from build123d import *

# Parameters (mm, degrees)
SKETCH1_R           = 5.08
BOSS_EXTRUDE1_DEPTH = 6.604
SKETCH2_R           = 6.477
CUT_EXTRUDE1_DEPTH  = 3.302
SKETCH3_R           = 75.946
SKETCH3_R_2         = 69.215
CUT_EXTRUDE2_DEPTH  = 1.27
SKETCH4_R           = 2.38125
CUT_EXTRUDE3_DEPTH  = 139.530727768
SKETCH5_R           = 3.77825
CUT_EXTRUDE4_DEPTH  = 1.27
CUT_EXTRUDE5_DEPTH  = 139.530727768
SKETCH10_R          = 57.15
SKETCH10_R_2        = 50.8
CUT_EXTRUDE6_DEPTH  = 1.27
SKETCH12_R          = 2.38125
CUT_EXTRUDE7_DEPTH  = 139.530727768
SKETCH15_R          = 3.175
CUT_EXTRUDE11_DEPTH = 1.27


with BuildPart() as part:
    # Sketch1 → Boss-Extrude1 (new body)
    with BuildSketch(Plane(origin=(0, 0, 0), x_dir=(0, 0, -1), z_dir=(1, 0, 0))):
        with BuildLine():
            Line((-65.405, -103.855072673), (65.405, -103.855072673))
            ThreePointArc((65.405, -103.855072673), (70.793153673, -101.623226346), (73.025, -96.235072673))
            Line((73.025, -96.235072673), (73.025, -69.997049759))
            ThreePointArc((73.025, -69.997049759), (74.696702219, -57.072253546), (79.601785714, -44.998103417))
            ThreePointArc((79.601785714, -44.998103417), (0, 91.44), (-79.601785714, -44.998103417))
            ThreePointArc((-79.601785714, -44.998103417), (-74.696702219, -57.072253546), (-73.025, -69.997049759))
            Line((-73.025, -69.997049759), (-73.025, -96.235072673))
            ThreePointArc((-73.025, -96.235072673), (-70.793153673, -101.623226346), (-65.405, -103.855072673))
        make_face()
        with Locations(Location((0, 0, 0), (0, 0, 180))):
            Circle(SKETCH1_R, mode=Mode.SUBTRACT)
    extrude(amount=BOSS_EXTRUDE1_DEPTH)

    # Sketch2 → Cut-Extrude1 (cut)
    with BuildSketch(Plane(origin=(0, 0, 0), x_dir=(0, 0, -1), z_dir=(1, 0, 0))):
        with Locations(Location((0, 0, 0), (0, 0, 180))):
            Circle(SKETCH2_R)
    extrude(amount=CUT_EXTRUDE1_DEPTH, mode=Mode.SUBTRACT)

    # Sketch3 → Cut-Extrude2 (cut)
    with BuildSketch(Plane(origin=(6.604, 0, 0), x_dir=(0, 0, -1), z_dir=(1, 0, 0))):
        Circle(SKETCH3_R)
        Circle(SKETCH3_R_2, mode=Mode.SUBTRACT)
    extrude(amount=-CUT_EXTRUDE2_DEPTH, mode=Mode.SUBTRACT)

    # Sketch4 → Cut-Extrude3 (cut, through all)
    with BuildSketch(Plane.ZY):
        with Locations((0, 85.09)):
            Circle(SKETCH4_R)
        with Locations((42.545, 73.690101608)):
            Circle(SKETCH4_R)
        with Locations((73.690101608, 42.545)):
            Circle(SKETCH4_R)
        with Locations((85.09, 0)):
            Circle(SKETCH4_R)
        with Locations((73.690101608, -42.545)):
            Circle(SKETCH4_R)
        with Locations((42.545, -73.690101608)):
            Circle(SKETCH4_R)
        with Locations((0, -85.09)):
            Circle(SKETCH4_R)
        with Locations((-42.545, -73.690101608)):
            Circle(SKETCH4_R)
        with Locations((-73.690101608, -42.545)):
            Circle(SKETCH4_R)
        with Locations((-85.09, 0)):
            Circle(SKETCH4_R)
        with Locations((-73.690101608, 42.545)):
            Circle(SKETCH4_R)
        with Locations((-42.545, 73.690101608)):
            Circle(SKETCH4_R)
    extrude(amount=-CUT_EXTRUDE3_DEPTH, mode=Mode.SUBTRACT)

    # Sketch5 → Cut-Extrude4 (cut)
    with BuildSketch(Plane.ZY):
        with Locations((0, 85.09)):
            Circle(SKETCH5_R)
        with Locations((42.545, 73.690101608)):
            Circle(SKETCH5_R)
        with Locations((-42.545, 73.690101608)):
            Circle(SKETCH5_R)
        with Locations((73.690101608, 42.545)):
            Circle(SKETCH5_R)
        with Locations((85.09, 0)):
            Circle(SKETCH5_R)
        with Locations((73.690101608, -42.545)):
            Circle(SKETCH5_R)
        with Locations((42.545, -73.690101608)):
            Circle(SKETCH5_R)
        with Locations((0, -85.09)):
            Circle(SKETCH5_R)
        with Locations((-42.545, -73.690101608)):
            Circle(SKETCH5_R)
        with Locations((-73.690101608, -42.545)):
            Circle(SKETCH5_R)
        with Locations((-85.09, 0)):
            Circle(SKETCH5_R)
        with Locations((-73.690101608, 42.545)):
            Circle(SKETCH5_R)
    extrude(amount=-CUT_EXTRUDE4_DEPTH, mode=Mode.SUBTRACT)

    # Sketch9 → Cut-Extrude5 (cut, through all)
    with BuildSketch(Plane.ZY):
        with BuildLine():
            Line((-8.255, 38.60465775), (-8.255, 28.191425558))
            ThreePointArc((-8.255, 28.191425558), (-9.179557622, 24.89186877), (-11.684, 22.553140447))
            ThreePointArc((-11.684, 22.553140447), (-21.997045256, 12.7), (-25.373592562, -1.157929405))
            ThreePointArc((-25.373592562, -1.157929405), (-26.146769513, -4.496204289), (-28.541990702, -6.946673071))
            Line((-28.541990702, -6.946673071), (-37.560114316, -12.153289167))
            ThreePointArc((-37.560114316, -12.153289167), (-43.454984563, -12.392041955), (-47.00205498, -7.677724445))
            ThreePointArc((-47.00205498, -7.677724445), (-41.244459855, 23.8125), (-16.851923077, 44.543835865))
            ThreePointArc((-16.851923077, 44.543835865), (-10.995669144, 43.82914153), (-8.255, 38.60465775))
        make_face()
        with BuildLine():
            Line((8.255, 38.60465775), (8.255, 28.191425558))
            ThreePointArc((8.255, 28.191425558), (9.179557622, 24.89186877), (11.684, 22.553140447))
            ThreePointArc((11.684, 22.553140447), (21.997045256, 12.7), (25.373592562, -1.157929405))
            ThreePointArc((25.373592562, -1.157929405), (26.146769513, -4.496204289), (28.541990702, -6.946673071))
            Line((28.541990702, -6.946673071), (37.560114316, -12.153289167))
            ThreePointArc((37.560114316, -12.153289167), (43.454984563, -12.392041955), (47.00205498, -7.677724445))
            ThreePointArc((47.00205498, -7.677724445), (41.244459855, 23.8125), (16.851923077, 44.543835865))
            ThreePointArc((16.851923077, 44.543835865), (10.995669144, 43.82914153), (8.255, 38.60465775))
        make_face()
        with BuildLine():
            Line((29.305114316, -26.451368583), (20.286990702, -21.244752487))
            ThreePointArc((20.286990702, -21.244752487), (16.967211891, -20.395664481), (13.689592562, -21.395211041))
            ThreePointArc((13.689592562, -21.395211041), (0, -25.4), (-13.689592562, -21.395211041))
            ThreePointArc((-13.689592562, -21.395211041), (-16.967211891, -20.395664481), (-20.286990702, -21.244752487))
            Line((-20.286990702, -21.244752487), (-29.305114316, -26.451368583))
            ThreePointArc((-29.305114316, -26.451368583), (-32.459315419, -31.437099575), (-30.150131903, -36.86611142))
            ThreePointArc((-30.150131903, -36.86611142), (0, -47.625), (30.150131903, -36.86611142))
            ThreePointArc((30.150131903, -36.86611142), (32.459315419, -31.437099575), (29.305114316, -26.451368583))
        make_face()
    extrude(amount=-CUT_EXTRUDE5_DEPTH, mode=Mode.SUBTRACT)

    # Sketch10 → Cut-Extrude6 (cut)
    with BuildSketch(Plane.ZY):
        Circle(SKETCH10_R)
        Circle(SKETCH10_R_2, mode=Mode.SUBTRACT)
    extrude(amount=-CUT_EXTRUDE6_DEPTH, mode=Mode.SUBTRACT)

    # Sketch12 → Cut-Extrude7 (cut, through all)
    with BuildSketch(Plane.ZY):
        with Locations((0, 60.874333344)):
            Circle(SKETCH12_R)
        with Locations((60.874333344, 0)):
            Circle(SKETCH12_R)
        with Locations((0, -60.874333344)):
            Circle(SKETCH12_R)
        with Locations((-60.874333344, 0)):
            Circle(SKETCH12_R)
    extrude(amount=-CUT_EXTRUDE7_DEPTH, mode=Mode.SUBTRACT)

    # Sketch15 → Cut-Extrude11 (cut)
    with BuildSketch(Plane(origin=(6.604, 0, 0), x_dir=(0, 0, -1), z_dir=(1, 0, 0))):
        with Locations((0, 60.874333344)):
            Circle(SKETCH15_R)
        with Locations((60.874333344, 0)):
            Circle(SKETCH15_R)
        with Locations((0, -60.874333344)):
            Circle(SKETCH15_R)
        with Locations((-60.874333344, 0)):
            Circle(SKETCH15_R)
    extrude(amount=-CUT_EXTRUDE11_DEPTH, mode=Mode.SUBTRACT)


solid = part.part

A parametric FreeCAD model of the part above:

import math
import FreeCAD as App
import Part
import Sketcher

V = App.Vector
Q = App.Units.Quantity

doc = App.newDocument("Part")
params = doc.addObject("Spreadsheet::Sheet", "Params")
for row, (alias, value) in enumerate([
    ("sketch1_radius", "2 in"),
    ("sketch1_diameter", "0.4 in"),
    ("sketch1_radius2", "0.3 in"),
    ("sketch1_radius3", "3.6 in"),
    ("sketch1_height", "5.15 in"),
    ("pad1_length", "0.26 in"),
    ("sketch2_diameter", "0.51 in"),
    ("pocket1_length", "0.13 in"),
    ("sketch3_diameter", "5.98 in"),
    ("sketch3_diameter2", "5.45 in"),
    ("pocket2_length", "0.05 in"),
    ("sketch4_diameter", "0.1875 in"),
    ("pocket4_length", "0.05 in"),
    ("sketch6_radius", "1 in"),
    ("sketch6_radius2", "0.25 in"),
    ("sketch6_radius3", "1.875 in"),
    ("sketch7_diameter", "4 in"),
    ("sketch7_diameter2", "4.5 in"),
    ("pocket6_length", "0.05 in"),
    ("sketch8_diameter", "0.1875 in"),
    ("sketch9_diameter", "0.25 in"),
    ("pocket8_length", "0.05 in"),
], start=1):
    params.set(f"A{row}", alias)
    params.set(f"B{row}", "=" + value)
    params.setAlias(f"B{row}", alias)

body = doc.addObject("PartDesign::Body", "Body")

# Sketch on YZ plane
sketch1 = body.newObject("Sketcher::SketchObject", "Sketch")
sketch1.AttachmentSupport = (doc.getObject("YZ_Plane"), [""])
sketch1.MapMode = "FlatFace"
sketch1.addGeometry(Part.LineSegment(V(-104, 65, 0), V(-104, -65, 0)), False)
sketch1.addGeometry(Part.ArcOfCircle(Part.Circle(V(-96, -65, 0), V(0, 0, 1), 8), math.radians(180), math.radians(270)), False)
sketch1.addGeometry(Part.LineSegment(V(-96, -73, 0), V(-70, -73, 0)), False)
sketch1.addGeometry(Part.ArcOfCircle(Part.Circle(V(-70, -124, 0), V(0, 0, 1), 51), math.radians(61), math.radians(90)), False)
sketch1.addGeometry(Part.ArcOfCircle(Part.Circle(V(0, 0, 0), V(0, 0, 1), 91), math.radians(-119), math.radians(119)), False)
sketch1.addGeometry(Part.ArcOfCircle(Part.Circle(V(-70, 124, 0), V(0, 0, 1), 51), math.radians(-90), math.radians(-61)), False)
sketch1.addGeometry(Part.LineSegment(V(-70, 73, 0), V(-96, 73, 0)), False)
sketch1.addGeometry(Part.ArcOfCircle(Part.Circle(V(-96, 65, 0), V(0, 0, 1), 8), math.radians(90), math.radians(180)), False)
sketch1.addGeometry(Part.Circle(V(0, 0, 0), V(0, 0, 1), 5), False)
sketch1.addConstraint(Sketcher.Constraint("Tangent", 0, 2, 1, 1))
sketch1.addConstraint(Sketcher.Constraint("Tangent", 1, 2, 2, 1))
sketch1.addConstraint(Sketcher.Constraint("Tangent", 2, 2, 3, 2))
sketch1.addConstraint(Sketcher.Constraint("Tangent", 3, 1, 4, 1))
sketch1.addConstraint(Sketcher.Constraint("Tangent", 4, 2, 5, 2))
sketch1.addConstraint(Sketcher.Constraint("Tangent", 5, 1, 6, 1))
sketch1.addConstraint(Sketcher.Constraint("Tangent", 6, 2, 7, 1))
sketch1.addConstraint(Sketcher.Constraint("Tangent", 7, 2, 0, 1))
sketch1.addConstraint(Sketcher.Constraint("Vertical", 0))
sketch1.addConstraint(Sketcher.Constraint("Horizontal", 2))
sketch1.addConstraint(Sketcher.Constraint("Horizontal", 6))
sketch1.addConstraint(Sketcher.Constraint("Coincident", 4, 3, -1, 1))
sketch1.addConstraint(Sketcher.Constraint("Coincident", 8, 3, -1, 1))
sketch1.addConstraint(Sketcher.Constraint("Equal", 3, 5))
sketch1.addConstraint(Sketcher.Constraint("Equal", 1, 7))
sketch1.addConstraint(Sketcher.Constraint("Vertical", 3, 3, 5, 3))
sketch1.addConstraint(Sketcher.Constraint("Radius", 3, Q("2 in")))
sketch1.addConstraint(Sketcher.Constraint("Diameter", 8, Q("0.4 in")))
sketch1.addConstraint(Sketcher.Constraint("Radius", 1, Q("0.3 in")))
sketch1.addConstraint(Sketcher.Constraint("Radius", 4, Q("3.6 in")))
sketch1.addConstraint(Sketcher.Constraint("DistanceY", 0, 2, 0, 1, Q("5.15 in")))
sketch1.addConstraint(Sketcher.Constraint("DistanceX", 2, 1, 2, 2, 26.238023))
sketch1.setExpression("Constraints[16]", "Params.sketch1_radius")
sketch1.setExpression("Constraints[17]", "Params.sketch1_diameter")
sketch1.setExpression("Constraints[18]", "Params.sketch1_radius2")
sketch1.setExpression("Constraints[19]", "Params.sketch1_radius3")
sketch1.setExpression("Constraints[20]", "Params.sketch1_height")
pad1 = body.newObject("PartDesign::Pad", "Pad")
pad1.Profile = sketch1
pad1.setExpression("Length", "Params.pad1_length")

# Sketch on YZ plane
sketch2 = body.newObject("Sketcher::SketchObject", "Sketch001")
sketch2.AttachmentSupport = (doc.getObject("YZ_Plane"), [""])
sketch2.MapMode = "FlatFace"
sketch2.addGeometry(Part.Circle(V(0, 0, 0), V(0, 0, 1), 6), False)
sketch2.addConstraint(Sketcher.Constraint("Coincident", 0, 3, -1, 1))
sketch2.addConstraint(Sketcher.Constraint("Diameter", 0, Q("0.51 in")))
sketch2.setExpression("Constraints[1]", "Params.sketch2_diameter")
pocket1 = body.newObject("PartDesign::Pocket", "Pocket")
pocket1.Profile = sketch2
pocket1.setExpression("Length", "Params.pocket1_length")
pocket1.Reversed = True

# Sketch on YZ plane
sketch3 = body.newObject("Sketcher::SketchObject", "Sketch002")
sketch3.AttachmentSupport = (doc.getObject("YZ_Plane"), [""])
sketch3.MapMode = "FlatFace"
sketch3.AttachmentOffset = App.Placement(V(0, 0, 0.26 * 25.4), App.Rotation())
sketch3.addGeometry(Part.Circle(V(0, 0, 0), V(0, 0, 1), 76), False)
sketch3.addGeometry(Part.Circle(V(0, 0, 0), V(0, 0, 1), 69), False)
sketch3.addConstraint(Sketcher.Constraint("Coincident", 0, 3, -1, 1))
sketch3.addConstraint(Sketcher.Constraint("Coincident", 1, 3, -1, 1))
sketch3.addConstraint(Sketcher.Constraint("Diameter", 0, Q("5.98 in")))
sketch3.addConstraint(Sketcher.Constraint("Diameter", 1, Q("5.45 in")))
sketch3.setExpression("Constraints[2]", "Params.sketch3_diameter")
sketch3.setExpression("Constraints[3]", "Params.sketch3_diameter2")
pocket2 = body.newObject("PartDesign::Pocket", "Pocket001")
pocket2.Profile = sketch3
pocket2.setExpression("Length", "Params.pocket2_length")

# Sketch on YZ plane
sketch4 = body.newObject("Sketcher::SketchObject", "Sketch003")
sketch4.AttachmentSupport = (doc.getObject("YZ_Plane"), [""])
sketch4.MapMode = "FlatFace"
sketch4.addGeometry(Part.Circle(V(85.1, 0, 0), V(0, 0, 1), 2.4), False)
sketch4.addGeometry(Part.Circle(V(73.7, 42.5, 0), V(0, 0, 1), 2.4), False)
sketch4.addGeometry(Part.Circle(V(42.5, 73.7, 0), V(0, 0, 1), 2.4), False)
sketch4.addGeometry(Part.Circle(V(0, 85.1, 0), V(0, 0, 1), 2.4), False)
sketch4.addGeometry(Part.Circle(V(-42.5, 73.7, 0), V(0, 0, 1), 2.4), False)
sketch4.addGeometry(Part.Circle(V(-73.7, 42.5, 0), V(0, 0, 1), 2.4), False)
sketch4.addGeometry(Part.Circle(V(-85.1, 0, 0), V(0, 0, 1), 2.4), False)
sketch4.addGeometry(Part.Circle(V(-73.7, -42.5, 0), V(0, 0, 1), 2.4), False)
sketch4.addGeometry(Part.Circle(V(-42.5, -73.7, 0), V(0, 0, 1), 2.4), False)
sketch4.addGeometry(Part.Circle(V(0, -85.1, 0), V(0, 0, 1), 2.4), False)
sketch4.addGeometry(Part.Circle(V(42.5, -73.7, 0), V(0, 0, 1), 2.4), False)
sketch4.addGeometry(Part.Circle(V(73.7, -42.5, 0), V(0, 0, 1), 2.4), False)
sketch4.addConstraint(Sketcher.Constraint("Equal", 0, 1))
sketch4.addConstraint(Sketcher.Constraint("Equal", 1, 2))
sketch4.addConstraint(Sketcher.Constraint("Equal", 2, 3))
sketch4.addConstraint(Sketcher.Constraint("Equal", 3, 4))
sketch4.addConstraint(Sketcher.Constraint("Equal", 4, 5))
sketch4.addConstraint(Sketcher.Constraint("Equal", 5, 6))
sketch4.addConstraint(Sketcher.Constraint("Equal", 6, 7))
sketch4.addConstraint(Sketcher.Constraint("Equal", 7, 8))
sketch4.addConstraint(Sketcher.Constraint("Equal", 8, 9))
sketch4.addConstraint(Sketcher.Constraint("Equal", 9, 10))
sketch4.addConstraint(Sketcher.Constraint("Equal", 10, 11))
sketch4.addConstraint(Sketcher.Constraint("Symmetric", 0, 3, 6, 3, -1, 1))
sketch4.addConstraint(Sketcher.Constraint("Symmetric", 1, 3, 7, 3, -1, 1))
sketch4.addConstraint(Sketcher.Constraint("Symmetric", 2, 3, 8, 3, -1, 1))
sketch4.addConstraint(Sketcher.Constraint("Symmetric", 3, 3, 9, 3, -1, 1))
sketch4.addConstraint(Sketcher.Constraint("Symmetric", 4, 3, 10, 3, -1, 1))
sketch4.addConstraint(Sketcher.Constraint("Symmetric", 5, 3, 11, 3, -1, 1))
sketch4.addConstraint(Sketcher.Constraint("Symmetric", 2, 3, 4, 3, -2))
sketch4.addConstraint(Sketcher.Constraint("Symmetric", 1, 3, 5, 3, -2))
sketch4.addConstraint(Sketcher.Constraint("PointOnObject", 0, 3, -1))
sketch4.addConstraint(Sketcher.Constraint("PointOnObject", 3, 3, -2))
sketch4.addConstraint(Sketcher.Constraint("Diameter", 0, Q("0.1875 in")))
sketch4.addConstraint(Sketcher.Constraint("DistanceX", -1, 1, 0, 3, Q("3.35 in")))
sketch4.addConstraint(Sketcher.Constraint("DistanceY", -1, 1, 3, 3, Q("3.35 in")))
sketch4.addConstraint(Sketcher.Constraint("DistanceX", 4, 3, 2, 3, Q("3.35 in")))
sketch4.addConstraint(Sketcher.Constraint("DistanceY", 7, 3, 5, 3, Q("3.35 in")))
sketch4.addConstraint(Sketcher.Constraint("DistanceX", -1, 1, 1, 3, 73.690102))
sketch4.addConstraint(Sketcher.Constraint("DistanceY", -1, 1, 2, 3, 73.690102))
sketch4.setExpression("Constraints[21]", "Params.sketch4_diameter")
pocket3 = body.newObject("PartDesign::Pocket", "Pocket002")
pocket3.Profile = sketch4
pocket3.Type = "ThroughAll"
pocket3.Reversed = True

# Sketch on YZ plane
sketch5 = body.newObject("Sketcher::SketchObject", "Sketch004")
sketch5.AttachmentSupport = (doc.getObject("YZ_Plane"), [""])
sketch5.MapMode = "FlatFace"
sketch5.addGeometry(Part.Circle(V(85.1, 0, 0), V(0, 0, 1), 3.8), False)
sketch5.addGeometry(Part.Circle(V(73.7, 42.5, 0), V(0, 0, 1), 3.8), False)
sketch5.addGeometry(Part.Circle(V(73.7, -42.5, 0), V(0, 0, 1), 3.8), False)
sketch5.addGeometry(Part.Circle(V(42.5, 73.7, 0), V(0, 0, 1), 3.8), False)
sketch5.addGeometry(Part.Circle(V(0, 85.1, 0), V(0, 0, 1), 3.8), False)
sketch5.addGeometry(Part.Circle(V(-42.5, 73.7, 0), V(0, 0, 1), 3.8), False)
sketch5.addGeometry(Part.Circle(V(-73.7, 42.5, 0), V(0, 0, 1), 3.8), False)
sketch5.addGeometry(Part.Circle(V(-85.1, 0, 0), V(0, 0, 1), 3.8), False)
sketch5.addGeometry(Part.Circle(V(-73.7, -42.5, 0), V(0, 0, 1), 3.8), False)
sketch5.addGeometry(Part.Circle(V(-42.5, -73.7, 0), V(0, 0, 1), 3.8), False)
sketch5.addGeometry(Part.Circle(V(0, -85.1, 0), V(0, 0, 1), 3.8), False)
sketch5.addGeometry(Part.Circle(V(42.5, -73.7, 0), V(0, 0, 1), 3.8), False)
sketch5.addConstraint(Sketcher.Constraint("Equal", 0, 1))
sketch5.addConstraint(Sketcher.Constraint("Equal", 1, 2))
sketch5.addConstraint(Sketcher.Constraint("Equal", 2, 3))
sketch5.addConstraint(Sketcher.Constraint("Equal", 3, 4))
sketch5.addConstraint(Sketcher.Constraint("Equal", 4, 5))
sketch5.addConstraint(Sketcher.Constraint("Equal", 5, 6))
sketch5.addConstraint(Sketcher.Constraint("Equal", 6, 7))
sketch5.addConstraint(Sketcher.Constraint("Equal", 7, 8))
sketch5.addConstraint(Sketcher.Constraint("Equal", 8, 9))
sketch5.addConstraint(Sketcher.Constraint("Equal", 9, 10))
sketch5.addConstraint(Sketcher.Constraint("Equal", 10, 11))
sketch5.addConstraint(Sketcher.Constraint("Symmetric", 2, 3, 6, 3, -1, 1))
sketch5.addConstraint(Sketcher.Constraint("Symmetric", 0, 3, 7, 3, -1, 1))
sketch5.addConstraint(Sketcher.Constraint("Symmetric", 1, 3, 8, 3, -1, 1))
sketch5.addConstraint(Sketcher.Constraint("Symmetric", 3, 3, 9, 3, -1, 1))
sketch5.addConstraint(Sketcher.Constraint("Symmetric", 4, 3, 10, 3, -1, 1))
sketch5.addConstraint(Sketcher.Constraint("Symmetric", 5, 3, 11, 3, -1, 1))
sketch5.addConstraint(Sketcher.Constraint("Symmetric", 3, 3, 5, 3, -2))
sketch5.addConstraint(Sketcher.Constraint("Symmetric", 1, 3, 6, 3, -2))
sketch5.addConstraint(Sketcher.Constraint("PointOnObject", 0, 3, -1))
sketch5.addConstraint(Sketcher.Constraint("PointOnObject", 4, 3, -2))
sketch5.addConstraint(Sketcher.Constraint("Diameter", 0, Q("0.2975 in")))
sketch5.addConstraint(Sketcher.Constraint("DistanceX", -1, 1, 0, 3, Q("3.35 in")))
sketch5.addConstraint(Sketcher.Constraint("DistanceY", -1, 1, 4, 3, Q("3.35 in")))
sketch5.addConstraint(Sketcher.Constraint("DistanceY", 2, 3, 1, 3, Q("3.35 in")))
sketch5.addConstraint(Sketcher.Constraint("DistanceX", 5, 3, 3, 3, Q("3.35 in")))
sketch5.addConstraint(Sketcher.Constraint("DistanceX", -1, 1, 1, 3, 73.690102))
sketch5.addConstraint(Sketcher.Constraint("DistanceY", -1, 1, 3, 3, 73.690102))
pocket4 = body.newObject("PartDesign::Pocket", "Pocket003")
pocket4.Profile = sketch5
pocket4.setExpression("Length", "Params.pocket4_length")
pocket4.Reversed = True

# Sketch on YZ plane
sketch6 = body.newObject("Sketcher::SketchObject", "Sketch005")
sketch6.AttachmentSupport = (doc.getObject("YZ_Plane"), [""])
sketch6.MapMode = "FlatFace"
sketch6.addGeometry(Part.LineSegment(V(28, -8, 0), V(39, -8, 0)), False)
sketch6.addGeometry(Part.ArcOfCircle(Part.Circle(V(39, -15, 0), V(0, 0, 1), 6), math.radians(-21), math.radians(90)), False)
sketch6.addGeometry(Part.ArcOfCircle(Part.Circle(V(0, 0, 0), V(0, 0, 1), 48), math.radians(-99), math.radians(-21)), False)
sketch6.addGeometry(Part.ArcOfCircle(Part.Circle(V(-7, -41, 0), V(0, 0, 1), 6), math.radians(150), math.radians(261)), False)
sketch6.addGeometry(Part.LineSegment(V(-12, -38, 0), V(-7, -29, 0)), False)
sketch6.addGeometry(Part.ArcOfCircle(Part.Circle(V(-1, -32, 0), V(0, 0, 1), 6), math.radians(87), math.radians(150)), False)
sketch6.addGeometry(Part.ArcOfCircle(Part.Circle(V(0, 0, 0), V(0, 0, 1), 25), math.radians(-93), math.radians(-27)), False)
sketch6.addGeometry(Part.ArcOfCircle(Part.Circle(V(28, -15, 0), V(0, 0, 1), 6), math.radians(90), math.radians(153)), False)
sketch6.addGeometry(Part.LineSegment(V(39, 8, 0), V(28, 8, 0)), False)
sketch6.addGeometry(Part.ArcOfCircle(Part.Circle(V(28, 15, 0), V(0, 0, 1), 6), math.radians(-153), math.radians(-90)), False)
sketch6.addGeometry(Part.ArcOfCircle(Part.Circle(V(0, 0, 0), V(0, 0, 1), 25), math.radians(27), math.radians(93)), False)
sketch6.addGeometry(Part.ArcOfCircle(Part.Circle(V(-1, 32, 0), V(0, 0, 1), 6), math.radians(-150), math.radians(-87)), False)
sketch6.addGeometry(Part.LineSegment(V(-7, 29, 0), V(-12, 38, 0)), False)
sketch6.addGeometry(Part.ArcOfCircle(Part.Circle(V(-7, 41, 0), V(0, 0, 1), 6), math.radians(99), math.radians(210)), False)
sketch6.addGeometry(Part.ArcOfCircle(Part.Circle(V(0, 0, 0), V(0, 0, 1), 48), math.radians(21), math.radians(99)), False)
sketch6.addGeometry(Part.ArcOfCircle(Part.Circle(V(39, 15, 0), V(0, 0, 1), 6), math.radians(-90), math.radians(21)), False)
sketch6.addGeometry(Part.LineSegment(V(-26, 29, 0), V(-21, 20, 0)), False)
sketch6.addGeometry(Part.ArcOfCircle(Part.Circle(V(-27, 17, 0), V(0, 0, 1), 6), math.radians(-33), math.radians(30)), False)
sketch6.addGeometry(Part.ArcOfCircle(Part.Circle(V(0, 0, 0), V(0, 0, 1), 25), math.radians(147), math.radians(213)), False)
sketch6.addGeometry(Part.ArcOfCircle(Part.Circle(V(-27, -17, 0), V(0, 0, 1), 6), math.radians(-30), math.radians(33)), False)
sketch6.addGeometry(Part.LineSegment(V(-21, -20, 0), V(-26, -29, 0)), False)
sketch6.addGeometry(Part.ArcOfCircle(Part.Circle(V(-32, -26, 0), V(0, 0, 1), 6), math.radians(-141), math.radians(-30)), False)
sketch6.addGeometry(Part.ArcOfCircle(Part.Circle(V(0, 0, 0), V(0, 0, 1), 48), math.radians(141), math.radians(219)), False)
sketch6.addGeometry(Part.ArcOfCircle(Part.Circle(V(-32, 26, 0), V(0, 0, 1), 6), math.radians(30), math.radians(141)), False)
sketch6.addConstraint(Sketcher.Constraint("Tangent", 0, 2, 1, 2))
sketch6.addConstraint(Sketcher.Constraint("Tangent", 1, 1, 2, 2))
sketch6.addConstraint(Sketcher.Constraint("Tangent", 2, 1, 3, 2))
sketch6.addConstraint(Sketcher.Constraint("Tangent", 3, 1, 4, 1))
sketch6.addConstraint(Sketcher.Constraint("Tangent", 4, 2, 5, 2))
sketch6.addConstraint(Sketcher.Constraint("Tangent", 5, 1, 6, 1))
sketch6.addConstraint(Sketcher.Constraint("Tangent", 6, 2, 7, 2))
sketch6.addConstraint(Sketcher.Constraint("Tangent", 7, 1, 0, 1))
sketch6.addConstraint(Sketcher.Constraint("Tangent", 8, 2, 9, 2))
sketch6.addConstraint(Sketcher.Constraint("Tangent", 9, 1, 10, 1))
sketch6.addConstraint(Sketcher.Constraint("Tangent", 10, 2, 11, 2))
sketch6.addConstraint(Sketcher.Constraint("Tangent", 11, 1, 12, 1))
sketch6.addConstraint(Sketcher.Constraint("Tangent", 12, 2, 13, 2))
sketch6.addConstraint(Sketcher.Constraint("Tangent", 13, 1, 14, 2))
sketch6.addConstraint(Sketcher.Constraint("Tangent", 14, 1, 15, 2))
sketch6.addConstraint(Sketcher.Constraint("Tangent", 15, 1, 8, 1))
sketch6.addConstraint(Sketcher.Constraint("Tangent", 16, 2, 17, 2))
sketch6.addConstraint(Sketcher.Constraint("Tangent", 17, 1, 18, 1))
sketch6.addConstraint(Sketcher.Constraint("Tangent", 18, 2, 19, 2))
sketch6.addConstraint(Sketcher.Constraint("Tangent", 19, 1, 20, 1))
sketch6.addConstraint(Sketcher.Constraint("Tangent", 20, 2, 21, 2))
sketch6.addConstraint(Sketcher.Constraint("Tangent", 21, 1, 22, 2))
sketch6.addConstraint(Sketcher.Constraint("Tangent", 22, 1, 23, 2))
sketch6.addConstraint(Sketcher.Constraint("Tangent", 23, 1, 16, 1))
sketch6.addConstraint(Sketcher.Constraint("Horizontal", 0))
sketch6.addConstraint(Sketcher.Constraint("Horizontal", 8))
sketch6.addConstraint(Sketcher.Constraint("Coincident", 2, 3, -1, 1))
sketch6.addConstraint(Sketcher.Constraint("Coincident", 6, 3, -1, 1))
sketch6.addConstraint(Sketcher.Constraint("Coincident", 10, 3, -1, 1))
sketch6.addConstraint(Sketcher.Constraint("Coincident", 14, 3, -1, 1))
sketch6.addConstraint(Sketcher.Constraint("Coincident", 18, 3, -1, 1))
sketch6.addConstraint(Sketcher.Constraint("Coincident", 22, 3, -1, 1))
sketch6.addConstraint(Sketcher.Constraint("Equal", 1, 3))
sketch6.addConstraint(Sketcher.Constraint("Equal", 3, 5))
sketch6.addConstraint(Sketcher.Constraint("Equal", 5, 7))
sketch6.addConstraint(Sketcher.Constraint("Equal", 7, 9))
sketch6.addConstraint(Sketcher.Constraint("Equal", 6, 10))
sketch6.addConstraint(Sketcher.Constraint("Equal", 9, 11))
sketch6.addConstraint(Sketcher.Constraint("Equal", 11, 13))
sketch6.addConstraint(Sketcher.Constraint("Equal", 2, 14))
sketch6.addConstraint(Sketcher.Constraint("Equal", 13, 15))
sketch6.addConstraint(Sketcher.Constraint("Equal", 15, 17))
sketch6.addConstraint(Sketcher.Constraint("Equal", 10, 18))
sketch6.addConstraint(Sketcher.Constraint("Equal", 17, 19))
sketch6.addConstraint(Sketcher.Constraint("Equal", 19, 21))
sketch6.addConstraint(Sketcher.Constraint("Equal", 14, 22))
sketch6.addConstraint(Sketcher.Constraint("Equal", 21, 23))
sketch6.addConstraint(Sketcher.Constraint("Symmetric", 4, 2, 11, 1, -1))
sketch6.addConstraint(Sketcher.Constraint("Symmetric", 16, 2, 19, 1, -1))
sketch6.addConstraint(Sketcher.Constraint("Parallel", 12, 16))
sketch6.addConstraint(Sketcher.Constraint("Vertical", 7, 3, 9, 3))
sketch6.addConstraint(Sketcher.Constraint("Equal", 12, 16))
sketch6.addConstraint(Sketcher.Constraint("Radius", 6, Q("1 in")))
sketch6.addConstraint(Sketcher.Constraint("Radius", 1, Q("0.25 in")))
sketch6.addConstraint(Sketcher.Constraint("Angle", 4, Q("60 deg")))
sketch6.addConstraint(Sketcher.Constraint("Radius", 2, Q("1.875 in")))
sketch6.addConstraint(Sketcher.Constraint("DistanceY", 0, 2, 15, 3, Q("0.9 in")))
sketch6.addConstraint(Sketcher.Constraint("DistanceY", 3, 1, 21, 3, Q("0.45 in")))
sketch6.setExpression("Constraints[52]", "Params.sketch6_radius")
sketch6.setExpression("Constraints[53]", "Params.sketch6_radius2")
sketch6.setExpression("Constraints[55]", "Params.sketch6_radius3")
pocket5 = body.newObject("PartDesign::Pocket", "Pocket004")
pocket5.Profile = sketch6
pocket5.Type = "ThroughAll"
pocket5.Reversed = True

# Sketch on YZ plane
sketch7 = body.newObject("Sketcher::SketchObject", "Sketch006")
sketch7.AttachmentSupport = (doc.getObject("YZ_Plane"), [""])
sketch7.MapMode = "FlatFace"
sketch7.addGeometry(Part.Circle(V(0, 0, 0), V(0, 0, 1), 57), False)
sketch7.addGeometry(Part.Circle(V(0, 0, 0), V(0, 0, 1), 51), False)
sketch7.addConstraint(Sketcher.Constraint("Coincident", 0, 3, -1, 1))
sketch7.addConstraint(Sketcher.Constraint("Coincident", 1, 3, -1, 1))
sketch7.addConstraint(Sketcher.Constraint("Diameter", 1, Q("4 in")))
sketch7.addConstraint(Sketcher.Constraint("Diameter", 0, Q("4.5 in")))
sketch7.setExpression("Constraints[2]", "Params.sketch7_diameter")
sketch7.setExpression("Constraints[3]", "Params.sketch7_diameter2")
pocket6 = body.newObject("PartDesign::Pocket", "Pocket005")
pocket6.Profile = sketch7
pocket6.setExpression("Length", "Params.pocket6_length")
pocket6.Reversed = True

# Sketch on YZ plane
sketch8 = body.newObject("Sketcher::SketchObject", "Sketch007")
sketch8.AttachmentSupport = (doc.getObject("YZ_Plane"), [""])
sketch8.MapMode = "FlatFace"
sketch8.addGeometry(Part.Circle(V(60.9, 0, 0), V(0, 0, 1), 2.4), False)
sketch8.addGeometry(Part.Circle(V(0, 60.9, 0), V(0, 0, 1), 2.4), False)
sketch8.addGeometry(Part.Circle(V(-60.9, 0, 0), V(0, 0, 1), 2.4), False)
sketch8.addGeometry(Part.Circle(V(0, -60.9, 0), V(0, 0, 1), 2.4), False)
sketch8.addConstraint(Sketcher.Constraint("Equal", 0, 1))
sketch8.addConstraint(Sketcher.Constraint("Equal", 1, 2))
sketch8.addConstraint(Sketcher.Constraint("Equal", 2, 3))
sketch8.addConstraint(Sketcher.Constraint("Symmetric", 0, 3, 2, 3, -1, 1))
sketch8.addConstraint(Sketcher.Constraint("Symmetric", 1, 3, 3, 3, -1, 1))
sketch8.addConstraint(Sketcher.Constraint("PointOnObject", 0, 3, -1))
sketch8.addConstraint(Sketcher.Constraint("PointOnObject", 1, 3, -2))
sketch8.addConstraint(Sketcher.Constraint("Diameter", 0, Q("0.1875 in")))
sketch8.addConstraint(Sketcher.Constraint("DistanceX", -1, 1, 0, 3, 60.874333))
sketch8.addConstraint(Sketcher.Constraint("DistanceY", -1, 1, 1, 3, 60.874333))
sketch8.setExpression("Constraints[7]", "Params.sketch8_diameter")
pocket7 = body.newObject("PartDesign::Pocket", "Pocket006")
pocket7.Profile = sketch8
pocket7.Type = "ThroughAll"
pocket7.Reversed = True

# Sketch on YZ plane
sketch9 = body.newObject("Sketcher::SketchObject", "Sketch008")
sketch9.AttachmentSupport = (doc.getObject("YZ_Plane"), [""])
sketch9.MapMode = "FlatFace"
sketch9.AttachmentOffset = App.Placement(V(0, 0, 0.26 * 25.4), App.Rotation())
sketch9.addGeometry(Part.Circle(V(60.9, 0, 0), V(0, 0, 1), 3.2), False)
sketch9.addGeometry(Part.Circle(V(0, -60.9, 0), V(0, 0, 1), 3.2), False)
sketch9.addGeometry(Part.Circle(V(-60.9, 0, 0), V(0, 0, 1), 3.2), False)
sketch9.addGeometry(Part.Circle(V(0, 60.9, 0), V(0, 0, 1), 3.2), False)
sketch9.addConstraint(Sketcher.Constraint("Equal", 0, 1))
sketch9.addConstraint(Sketcher.Constraint("Equal", 1, 2))
sketch9.addConstraint(Sketcher.Constraint("Equal", 2, 3))
sketch9.addConstraint(Sketcher.Constraint("Symmetric", 0, 3, 2, 3, -1, 1))
sketch9.addConstraint(Sketcher.Constraint("Symmetric", 1, 3, 3, 3, -1, 1))
sketch9.addConstraint(Sketcher.Constraint("PointOnObject", 0, 3, -1))
sketch9.addConstraint(Sketcher.Constraint("PointOnObject", 1, 3, -2))
sketch9.addConstraint(Sketcher.Constraint("Diameter", 0, Q("0.25 in")))
sketch9.addConstraint(Sketcher.Constraint("DistanceX", -1, 1, 0, 3, 60.874333))
sketch9.addConstraint(Sketcher.Constraint("DistanceY", 1, 3, -1, 1, 60.874333))
sketch9.setExpression("Constraints[7]", "Params.sketch9_diameter")
pocket8 = body.newObject("PartDesign::Pocket", "Pocket007")
pocket8.Profile = sketch9
pocket8.setExpression("Length", "Params.pocket8_length")

doc.recompute()
